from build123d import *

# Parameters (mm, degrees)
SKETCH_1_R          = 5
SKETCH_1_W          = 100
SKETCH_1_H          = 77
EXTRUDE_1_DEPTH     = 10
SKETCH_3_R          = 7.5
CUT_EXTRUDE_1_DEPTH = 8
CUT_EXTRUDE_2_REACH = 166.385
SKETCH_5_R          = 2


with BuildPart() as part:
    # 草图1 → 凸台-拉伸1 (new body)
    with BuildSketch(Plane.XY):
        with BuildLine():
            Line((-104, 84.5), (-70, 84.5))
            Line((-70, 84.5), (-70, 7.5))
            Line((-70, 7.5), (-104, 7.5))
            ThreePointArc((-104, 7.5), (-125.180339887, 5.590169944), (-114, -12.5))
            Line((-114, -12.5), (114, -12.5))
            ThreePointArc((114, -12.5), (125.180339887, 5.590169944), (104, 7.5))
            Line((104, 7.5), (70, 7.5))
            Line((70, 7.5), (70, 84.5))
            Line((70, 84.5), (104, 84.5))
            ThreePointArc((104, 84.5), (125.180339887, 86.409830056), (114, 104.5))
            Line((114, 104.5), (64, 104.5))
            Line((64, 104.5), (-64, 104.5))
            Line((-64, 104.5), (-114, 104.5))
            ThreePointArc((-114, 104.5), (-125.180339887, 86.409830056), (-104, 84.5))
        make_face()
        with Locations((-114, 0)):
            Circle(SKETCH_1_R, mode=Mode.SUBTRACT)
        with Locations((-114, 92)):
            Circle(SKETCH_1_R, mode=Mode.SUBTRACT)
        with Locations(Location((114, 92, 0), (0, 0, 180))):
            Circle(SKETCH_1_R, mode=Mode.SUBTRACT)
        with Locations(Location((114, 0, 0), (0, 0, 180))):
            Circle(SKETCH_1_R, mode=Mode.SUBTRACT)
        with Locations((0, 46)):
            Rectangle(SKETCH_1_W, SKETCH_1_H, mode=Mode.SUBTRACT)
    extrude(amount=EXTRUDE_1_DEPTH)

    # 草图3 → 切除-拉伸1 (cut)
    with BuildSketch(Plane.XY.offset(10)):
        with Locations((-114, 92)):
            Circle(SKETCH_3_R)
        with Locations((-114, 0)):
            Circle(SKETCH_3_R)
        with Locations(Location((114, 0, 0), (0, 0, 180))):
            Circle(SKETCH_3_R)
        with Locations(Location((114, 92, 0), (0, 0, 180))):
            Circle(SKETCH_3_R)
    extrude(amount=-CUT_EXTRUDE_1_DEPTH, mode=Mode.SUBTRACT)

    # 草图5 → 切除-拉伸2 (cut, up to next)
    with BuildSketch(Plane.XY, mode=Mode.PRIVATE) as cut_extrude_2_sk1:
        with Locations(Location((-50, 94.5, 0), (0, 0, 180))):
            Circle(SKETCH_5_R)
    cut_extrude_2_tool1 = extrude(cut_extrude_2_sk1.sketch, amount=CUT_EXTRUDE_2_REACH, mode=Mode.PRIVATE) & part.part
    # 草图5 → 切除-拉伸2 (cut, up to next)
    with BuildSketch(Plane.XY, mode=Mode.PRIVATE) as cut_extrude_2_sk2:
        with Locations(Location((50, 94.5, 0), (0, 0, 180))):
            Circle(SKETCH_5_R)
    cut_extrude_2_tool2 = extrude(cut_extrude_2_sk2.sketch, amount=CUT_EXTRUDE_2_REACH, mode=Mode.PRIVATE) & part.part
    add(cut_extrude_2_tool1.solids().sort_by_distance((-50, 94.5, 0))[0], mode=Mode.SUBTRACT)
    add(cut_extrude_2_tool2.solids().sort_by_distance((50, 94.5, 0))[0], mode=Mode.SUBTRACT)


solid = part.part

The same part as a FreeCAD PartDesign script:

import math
import FreeCAD as App
import Part
import Sketcher

V = App.Vector

doc = App.newDocument("Part")
params = doc.addObject("Spreadsheet::Sheet", "Params")
for row, (alias, value) in enumerate([
    ("sketch1_diameter", "10 mm"),
    ("sketch1_radius", "12.5 mm"),
    ("sketch1_width", "34 mm"),
    ("sketch1_width2", "228 mm"),
    ("sketch1_width3", "100 mm"),
    ("pad1_length", "10 mm"),
    ("sketch2_diameter", "15 mm"),
    ("pocket1_length", "8 mm"),
    ("sketch3_diameter", "4 mm"),
    ("sketch4_diameter", "4 mm"),
], start=1):
    params.set(f"A{row}", alias)
    params.set(f"B{row}", "=" + value)
    params.setAlias(f"B{row}", alias)

body = doc.addObject("PartDesign::Body", "Body")

# Sketch on XY plane
sketch1 = doc.addObject("Sketcher::SketchObject", "Sketch")
body.addObject(sketch1)
sketch1.AttachmentSupport = (doc.XY_Plane, [""])
sketch1.MapMode = "FlatFace"
sketch1.addGeometry(Part.LineSegment(V(-104, 84.5, 0), V(-70, 84.5, 0)), False)
sketch1.addGeometry(Part.LineSegment(V(-70, 84.5, 0), V(-70, 7.5, 0)), False)
sketch1.addGeometry(Part.LineSegment(V(-70, 7.5, 0), V(-104, 7.5, 0)), False)
sketch1.addGeometry(Part.ArcOfCircle(Part.Circle(V(-114, 0, 0), V(0, 0, 1), 12.5), math.radians(36.869898), math.radians(270)), False)
sketch1.addGeometry(Part.LineSegment(V(-114, -12.5, 0), V(114, -12.5, 0)), False)
sketch1.addGeometry(Part.ArcOfCircle(Part.Circle(V(114, 0, 0), V(0, 0, 1), 12.5), math.radians(-90), math.radians(143.130102)), False)
sketch1.addGeometry(Part.LineSegment(V(104, 7.5, 0), V(70, 7.5, 0)), False)
sketch1.addGeometry(Part.LineSegment(V(70, 7.5, 0), V(70, 84.5, 0)), False)
sketch1.addGeometry(Part.LineSegment(V(70, 84.5, 0), V(104, 84.5, 0)), False)
sketch1.addGeometry(Part.ArcOfCircle(Part.Circle(V(114, 92, 0), V(0, 0, 1), 12.5), math.radians(-143.130102), math.radians(90)), False)
sketch1.addGeometry(Part.LineSegment(V(114, 104.5, 0), V(-114, 104.5, 0)), False)
sketch1.addGeometry(Part.ArcOfCircle(Part.Circle(V(-114, 92, 0), V(0, 0, 1), 12.5), math.radians(90), math.radians(323.130102)), False)
sketch1.addGeometry(Part.Circle(V(-114, 0, 0), V(0, 0, 1), 5), False)
sketch1.addGeometry(Part.Circle(V(114, 0, 0), V(0, 0, 1), 5), False)
sketch1.addGeometry(Part.Circle(V(-114, 92, 0), V(0, 0, 1), 5), False)
sketch1.addGeometry(Part.LineSegment(V(50, 7.5, 0), V(-50, 7.5, 0)), False)
sketch1.addGeometry(Part.LineSegment(V(-50, 7.5, 0), V(-50, 84.5, 0)), False)
sketch1.addGeometry(Part.LineSegment(V(-50, 84.5, 0), V(50, 84.5, 0)), False)
sketch1.addGeometry(Part.LineSegment(V(50, 84.5, 0), V(50, 7.5, 0)), False)
sketch1.addGeometry(Part.Circle(V(114, 92, 0), V(0, 0, 1), 5), False)
sketch1.addConstraint(Sketcher.Constraint("Coincident", 0, 2, 1, 1))
sketch1.addConstraint(Sketcher.Constraint("Coincident", 1, 2, 2, 1))
sketch1.addConstraint(Sketcher.Constraint("Coincident", 2, 2, 3, 1))
sketch1.addConstraint(Sketcher.Constraint("Tangent", 3, 2, 4, 1))
sketch1.addConstraint(Sketcher.Constraint("Tangent", 4, 2, 5, 1))
sketch1.addConstraint(Sketcher.Constraint("Coincident", 5, 2, 6, 1))
sketch1.addConstraint(Sketcher.Constraint("Coincident", 6, 2, 7, 1))
sketch1.addConstraint(Sketcher.Constraint("Coincident", 7, 2, 8, 1))
sketch1.addConstraint(Sketcher.Constraint("Coincident", 8, 2, 9, 1))
sketch1.addConstraint(Sketcher.Constraint("Tangent", 9, 2, 10, 1))
sketch1.addConstraint(Sketcher.Constraint("Tangent", 10, 2, 11, 1))
sketch1.addConstraint(Sketcher.Constraint("Coincident", 11, 2, 0, 1))
sketch1.addConstraint(Sketcher.Constraint("Coincident", 15, 2, 16, 1))
sketch1.addConstraint(Sketcher.Constraint("Coincident", 16, 2, 17, 1))
sketch1.addConstraint(Sketcher.Constraint("Coincident", 17, 2, 18, 1))
sketch1.addConstraint(Sketcher.Constraint("Coincident", 18, 2, 15, 1))
sketch1.addConstraint(Sketcher.Constraint("Horizontal", 0))
sketch1.addConstraint(Sketcher.Constraint("Vertical", 1))
sketch1.addConstraint(Sketcher.Constraint("Horizontal", 2))
sketch1.addConstraint(Sketcher.Constraint("Horizontal", 4))
sketch1.addConstraint(Sketcher.Constraint("Horizontal", 6))
sketch1.addConstraint(Sketcher.Constraint("Vertical", 7))
sketch1.addConstraint(Sketcher.Constraint("Horizontal", 8))
sketch1.addConstraint(Sketcher.Constraint("Horizontal", 10))
sketch1.addConstraint(Sketcher.Constraint("Horizontal", 15))
sketch1.addConstraint(Sketcher.Constraint("Vertical", 16))
sketch1.addConstraint(Sketcher.Constraint("Horizontal", 17))
sketch1.addConstraint(Sketcher.Constraint("Vertical", 18))
sketch1.addConstraint(Sketcher.Constraint("Coincident", 12, 3, 3, 3))
sketch1.addConstraint(Sketcher.Constraint("Coincident", 13, 3, 5, 3))
sketch1.addConstraint(Sketcher.Constraint("Coincident", 14, 3, 11, 3))
sketch1.addConstraint(Sketcher.Constraint("Coincident", 19, 3, 9, 3))
sketch1.addConstraint(Sketcher.Constraint("Equal", 3, 5))
sketch1.addConstraint(Sketcher.Constraint("Equal", 5, 9))
sketch1.addConstraint(Sketcher.Constraint("Equal", 9, 11))
sketch1.addConstraint(Sketcher.Constraint("Equal", 12, 13))
sketch1.addConstraint(Sketcher.Constraint("Equal", 13, 14))
sketch1.addConstraint(Sketcher.Constraint("Equal", 14, 19))
sketch1.addConstraint(Sketcher.Constraint("Symmetric", 3, 3, 5, 3, -1, 1))
sketch1.addConstraint(Sketcher.Constraint("Symmetric", 1, 2, 6, 2, -2))
sketch1.addConstraint(Sketcher.Constraint("Symmetric", 8, 2, 11, 2, -2))
sketch1.addConstraint(Sketcher.Constraint("Horizontal", 6, 2, 15, 2))
sketch1.addConstraint(Sketcher.Constraint("Horizontal", 11, 2, 16, 2))
sketch1.addConstraint(Sketcher.Constraint("Vertical", 5, 3, 9, 3))
sketch1.addConstraint(Sketcher.Constraint("Vertical", 5, 2, 8, 2))
sketch1.addConstraint(Sketcher.Constraint("Diameter", 12, 10.0))
sketch1.addConstraint(Sketcher.Constraint("Radius", 3, 12.5))
sketch1.addConstraint(Sketcher.Constraint("DistanceX", 0, 1, 0, 2, 34.0))
sketch1.addConstraint(Sketcher.Constraint("DistanceX", 4, 1, 4, 2, 228.0))
sketch1.addConstraint(Sketcher.Constraint("DistanceX", 15, 2, 15, 1, 100.0))
sketch1.addConstraint(Sketcher.Constraint("DistanceY", 1, 2, 1, 1, 77.0))
sketch1.addConstraint(Sketcher.Constraint("DistanceY", -1, 1, 9, 3, 92.0))
sketch1.addConstraint(Sketcher.Constraint("DistanceX", 15, 2, -1, 1, 50.0))
sketch1.setExpression("Constraints[45]", "Params.sketch1_diameter")
sketch1.setExpression("Constraints[46]", "Params.sketch1_radius")
sketch1.setExpression("Constraints[47]", "Params.sketch1_width")
sketch1.setExpression("Constraints[48]", "Params.sketch1_width2")
sketch1.setExpression("Constraints[49]", "Params.sketch1_width3")
pad1 = doc.addObject("PartDesign::Pad", "Pad")
body.addObject(pad1)
pad1.Profile = sketch1
pad1.setExpression("Length", "Params.pad1_length")

# Sketch on XY plane
sketch2 = doc.addObject("Sketcher::SketchObject", "Sketch001")
body.addObject(sketch2)
sketch2.AttachmentSupport = (doc.XY_Plane, [""])
sketch2.MapMode = "FlatFace"
sketch2.AttachmentOffset = App.Placement(V(0, 0, 10), App.Rotation())
sketch2.addGeometry(Part.Circle(V(-114, 92, 0), V(0, 0, 1), 7.5), False)
sketch2.addGeometry(Part.Circle(V(-114, 0, 0), V(0, 0, 1), 7.5), False)
sketch2.addGeometry(Part.Circle(V(114, 0, 0), V(0, 0, 1), 7.5), False)
sketch2.addGeometry(Part.Circle(V(114, 92, 0), V(0, 0, 1), 7.5), False)
sketch2.addConstraint(Sketcher.Constraint("Equal", 0, 1))
sketch2.addConstraint(Sketcher.Constraint("Equal", 1, 2))
sketch2.addConstraint(Sketcher.Constraint("Equal", 2, 3))
sketch2.addConstraint(Sketcher.Constraint("Symmetric", 1, 3, 2, 3, -1, 1))
sketch2.addConstraint(Sketcher.Constraint("Symmetric", 0, 3, 3, 3, -2))
sketch2.addConstraint(Sketcher.Constraint("PointOnObject", 1, 3, -1))
sketch2.addConstraint(Sketcher.Constraint("Vertical", 0, 3, 1, 3))
sketch2.addConstraint(Sketcher.Constraint("Diameter", 0, 15.0))
sketch2.addConstraint(Sketcher.Constraint("DistanceX", 0, 3, -1, 1, 114.0))
sketch2.addConstraint(Sketcher.Constraint("DistanceY", -1, 1, 0, 3, 92.0))
sketch2.setExpression("Constraints[7]", "Params.sketch2_diameter")
pocket1 = doc.addObject("PartDesign::Pocket", "Pocket")
body.addObject(pocket1)
pocket1.Profile = sketch2
pocket1.setExpression("Length", "Params.pocket1_length")

# Sketch on XY plane
sketch3 = doc.addObject("Sketcher::SketchObject", "Sketch002")
body.addObject(sketch3)
sketch3.AttachmentSupport = (doc.XY_Plane, [""])
sketch3.MapMode = "FlatFace"
sketch3.addGeometry(Part.Circle(V(-50, 94.5, 0), V(0, 0, 1), 2), False)
sketch3.addConstraint(Sketcher.Constraint("Diameter", 0, 4.0))
sketch3.addConstraint(Sketcher.Constraint("DistanceX", 0, 3, -1, 1, 50.0))
sketch3.addConstraint(Sketcher.Constraint("DistanceY", -1, 1, 0, 3, 94.5))
sketch3.setExpression("Constraints[0]", "Params.sketch3_diameter")
pocket2 = doc.addObject("PartDesign::Pocket", "Pocket001")
body.addObject(pocket2)
pocket2.Profile = sketch3
pocket2.Type = "UpToFirst"
pocket2.Reversed = True

# Sketch on XY plane
sketch4 = doc.addObject("Sketcher::SketchObject", "Sketch003")
body.addObject(sketch4)
sketch4.AttachmentSupport = (doc.XY_Plane, [""])
sketch4.MapMode = "FlatFace"
sketch4.addGeometry(Part.Circle(V(50, 94.5, 0), V(0, 0, 1), 2), False)
sketch4.addConstraint(Sketcher.Constraint("Diameter", 0, 4.0))
sketch4.addConstraint(Sketcher.Constraint("DistanceX", -1, 1, 0, 3, 50.0))
sketch4.addConstraint(Sketcher.Constraint("DistanceY", -1, 1, 0, 3, 94.5))
sketch4.setExpression("Constraints[0]", "Params.sketch4_diameter")
pocket3 = doc.addObject("PartDesign::Pocket", "Pocket002")
body.addObject(pocket3)
pocket3.Profile = sketch4
pocket3.Type = "UpToFirst"
pocket3.Reversed = True

doc.recompute()
